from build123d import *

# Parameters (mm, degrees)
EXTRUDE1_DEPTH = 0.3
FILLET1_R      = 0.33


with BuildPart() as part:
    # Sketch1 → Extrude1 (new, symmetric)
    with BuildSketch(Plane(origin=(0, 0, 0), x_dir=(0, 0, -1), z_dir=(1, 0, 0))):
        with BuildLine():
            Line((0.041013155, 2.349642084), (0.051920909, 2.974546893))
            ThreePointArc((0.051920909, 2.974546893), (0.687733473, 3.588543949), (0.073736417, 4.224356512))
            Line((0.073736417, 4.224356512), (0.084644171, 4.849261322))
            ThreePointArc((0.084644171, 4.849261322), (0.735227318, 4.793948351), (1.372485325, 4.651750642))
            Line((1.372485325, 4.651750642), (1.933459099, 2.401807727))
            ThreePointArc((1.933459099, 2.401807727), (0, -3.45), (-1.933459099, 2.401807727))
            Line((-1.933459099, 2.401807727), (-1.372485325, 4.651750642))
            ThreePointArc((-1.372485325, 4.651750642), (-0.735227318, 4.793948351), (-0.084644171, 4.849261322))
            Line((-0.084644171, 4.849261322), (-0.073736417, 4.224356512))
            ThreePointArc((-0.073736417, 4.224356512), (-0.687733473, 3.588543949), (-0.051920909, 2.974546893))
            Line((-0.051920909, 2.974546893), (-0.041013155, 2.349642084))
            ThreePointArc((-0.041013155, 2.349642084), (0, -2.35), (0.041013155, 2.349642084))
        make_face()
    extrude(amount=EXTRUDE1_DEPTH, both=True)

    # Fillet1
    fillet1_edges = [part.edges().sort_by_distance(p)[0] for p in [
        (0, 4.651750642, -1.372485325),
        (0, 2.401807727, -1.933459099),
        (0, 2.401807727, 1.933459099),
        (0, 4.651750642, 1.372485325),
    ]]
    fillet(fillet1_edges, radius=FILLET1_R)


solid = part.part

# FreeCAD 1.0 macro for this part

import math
import FreeCAD as App
import Part
import Sketcher
Q = App.Units.Quantity


def edges_at(feature, points):
    """Names of the edges that pass closest to the given points."""
    edges = feature.Shape.Edges
    near = lambda p: min(range(len(edges)), key=lambda i: edges[i].distToShape(Part.Vertex(*p))[0])
    return sorted({f"Edge{near(p) + 1}" for p in points})

doc = App.newDocument("Part")
params = doc.addObject("Spreadsheet::Sheet", "Params")
for row, (alias, value) in enumerate([
    ("sketch1_radius", "2.35 mm"),
    ("sketch1_radius2", "4.85 mm"),
    ("pad1_length", "0.6 mm"),
    ("fillet_radius", "0.33 mm"),
], start=1):
    params.set(f"A{row}", alias)
    params.set(f"B{row}", "=" + value)
    params.setAlias(f"B{row}", alias)

body = doc.addObject("PartDesign::Body", "Body")

# Sketch on YZ plane
sketch1 = body.newObject("Sketcher::SketchObject", "Sketch")
sketch1.AttachmentSupport = (doc.getObject("YZ_Plane"), [""])
sketch1.MapMode = "FlatFace"
sketch1.addGeometry([
    Part.LineSegment(App.Vector(2.97, -0.05, 0), App.Vector(2.35, -0.04, 0)),  # 0
    Part.ArcOfCircle(Part.Circle(App.Vector(0, 0, 0), App.Vector(0, 0, 1), 2.35), math.radians(1), math.radians(359)),  # 1
    Part.LineSegment(App.Vector(2.35, 0.04, 0), App.Vector(2.97, 0.05, 0)),  # 2
    Part.ArcOfCircle(Part.Circle(App.Vector(3.6, 0.06, 0), App.Vector(0, 0, 1), 0.62), math.radians(1), math.radians(181)),  # 3
    Part.LineSegment(App.Vector(4.22, 0.07, 0), App.Vector(4.85, 0.08, 0)),  # 4
    Part.ArcOfCircle(Part.Circle(App.Vector(0, 0, 0), App.Vector(0, 0, 1), 4.85), math.radians(1), math.radians(16.44)),  # 5
    Part.LineSegment(App.Vector(4.65, 1.37, 0), App.Vector(2.4, 1.93, 0)),  # 6
    Part.ArcOfCircle(Part.Circle(App.Vector(-0.2, 0, 0), App.Vector(0, 0, 1), 3.25), math.radians(37), math.radians(323)),  # 7
    Part.LineSegment(App.Vector(2.4, -1.93, 0), App.Vector(4.65, -1.37, 0)),  # 8
    Part.ArcOfCircle(Part.Circle(App.Vector(0, 0, 0), App.Vector(0, 0, 1), 4.85), math.radians(-16.44), math.radians(-1)),  # 9
    Part.LineSegment(App.Vector(4.85, -0.08, 0), App.Vector(4.22, -0.07, 0)),  # 10
    Part.ArcOfCircle(Part.Circle(App.Vector(3.6, -0.06, 0), App.Vector(0, 0, 1), 0.62), math.radians(179), math.radians(359)),  # 11
], False)
sketch1.addConstraint([
    Sketcher.Constraint("Coincident", 0, 2, 1, 2),
    Sketcher.Constraint("Coincident", 1, 1, 2, 1),
    Sketcher.Constraint("Coincident", 2, 2, 3, 2),
    Sketcher.Constraint("Coincident", 3, 1, 4, 1),
    Sketcher.Constraint("Coincident", 4, 2, 5, 1),
    Sketcher.Constraint("Coincident", 5, 2, 6, 1),
    Sketcher.Constraint("Coincident", 6, 2, 7, 1),
    Sketcher.Constraint("Coincident", 7, 2, 8, 1),
    Sketcher.Constraint("Coincident", 8, 2, 9, 1),
    Sketcher.Constraint("Coincident", 9, 2, 10, 1),
    Sketcher.Constraint("Coincident", 10, 2, 11, 2),
    Sketcher.Constraint("Coincident", 11, 1, 0, 1),
    Sketcher.Constraint("Coincident", 1, 3, -1, 1),
    Sketcher.Constraint("Coincident", 5, 3, -1, 1),
    Sketcher.Constraint("Coincident", 9, 3, -1, 1),
    Sketcher.Constraint("Equal", 5, 9),
    Sketcher.Constraint("Equal", 3, 11),
    Sketcher.Constraint("Symmetric", 3, 3, 11, 3, -1),
    Sketcher.Constraint("Symmetric", 6, 2, 7, 2, -1),
    Sketcher.Constraint("Parallel", 2, 4),
    Sketcher.Constraint("Parallel", 0, 10),
    Sketcher.Constraint("Vertical", 0, 2, 1, 1),
    Sketcher.Constraint("Vertical", 5, 2, 8, 2),
    Sketcher.Constraint("Vertical", 4, 2, 9, 2),
    Sketcher.Constraint("Vertical", 3, 1, 10, 2),
    Sketcher.Constraint("Equal", 2, 4),
    Sketcher.Constraint("Angle", 0, Q("179 deg")),
    Sketcher.Constraint("Angle", 6, Q("166 deg")),
    Sketcher.Constraint("Radius", 1, 2.35),
    Sketcher.Constraint("Radius", 5, 4.85),
    Sketcher.Constraint("Radius", 3, 0.625),
    Sketcher.Constraint("Radius", 7, 3.245315),
    Sketcher.Constraint("DistanceX", 3, 3, 5, 2, 1.052299),
    Sketcher.Constraint("Distance", 6, 2.318822),
    Sketcher.Constraint("DistanceX", -1, 1, 3, 3, 3.599452),
    Sketcher.Constraint("DistanceY", -1, 1, 2, 2, 0.051921),
    Sketcher.Constraint("DistanceX", -1, 1, 4, 2, 4.849261),
])
sketch1.setExpression("Constraints[28]", "Params.sketch1_radius")
sketch1.setExpression("Constraints[29]", "Params.sketch1_radius2")
pad1 = body.newObject("PartDesign::Pad", "Pad")
pad1.Profile = sketch1
pad1.setExpression("Length", "Params.pad1_length")
pad1.Midplane = True
doc.recompute()

fillet = body.newObject("PartDesign::Fillet", "Fillet")
fillet.Base = (pad1, edges_at(pad1, [
    (0, 4.652, -1.372),
    (0, 2.402, -1.933),
    (0, 2.402, 1.933),
    (0, 4.652, 1.372),
]))
fillet.setExpression("Radius", "Params.fillet_radius")

doc.recompute()
